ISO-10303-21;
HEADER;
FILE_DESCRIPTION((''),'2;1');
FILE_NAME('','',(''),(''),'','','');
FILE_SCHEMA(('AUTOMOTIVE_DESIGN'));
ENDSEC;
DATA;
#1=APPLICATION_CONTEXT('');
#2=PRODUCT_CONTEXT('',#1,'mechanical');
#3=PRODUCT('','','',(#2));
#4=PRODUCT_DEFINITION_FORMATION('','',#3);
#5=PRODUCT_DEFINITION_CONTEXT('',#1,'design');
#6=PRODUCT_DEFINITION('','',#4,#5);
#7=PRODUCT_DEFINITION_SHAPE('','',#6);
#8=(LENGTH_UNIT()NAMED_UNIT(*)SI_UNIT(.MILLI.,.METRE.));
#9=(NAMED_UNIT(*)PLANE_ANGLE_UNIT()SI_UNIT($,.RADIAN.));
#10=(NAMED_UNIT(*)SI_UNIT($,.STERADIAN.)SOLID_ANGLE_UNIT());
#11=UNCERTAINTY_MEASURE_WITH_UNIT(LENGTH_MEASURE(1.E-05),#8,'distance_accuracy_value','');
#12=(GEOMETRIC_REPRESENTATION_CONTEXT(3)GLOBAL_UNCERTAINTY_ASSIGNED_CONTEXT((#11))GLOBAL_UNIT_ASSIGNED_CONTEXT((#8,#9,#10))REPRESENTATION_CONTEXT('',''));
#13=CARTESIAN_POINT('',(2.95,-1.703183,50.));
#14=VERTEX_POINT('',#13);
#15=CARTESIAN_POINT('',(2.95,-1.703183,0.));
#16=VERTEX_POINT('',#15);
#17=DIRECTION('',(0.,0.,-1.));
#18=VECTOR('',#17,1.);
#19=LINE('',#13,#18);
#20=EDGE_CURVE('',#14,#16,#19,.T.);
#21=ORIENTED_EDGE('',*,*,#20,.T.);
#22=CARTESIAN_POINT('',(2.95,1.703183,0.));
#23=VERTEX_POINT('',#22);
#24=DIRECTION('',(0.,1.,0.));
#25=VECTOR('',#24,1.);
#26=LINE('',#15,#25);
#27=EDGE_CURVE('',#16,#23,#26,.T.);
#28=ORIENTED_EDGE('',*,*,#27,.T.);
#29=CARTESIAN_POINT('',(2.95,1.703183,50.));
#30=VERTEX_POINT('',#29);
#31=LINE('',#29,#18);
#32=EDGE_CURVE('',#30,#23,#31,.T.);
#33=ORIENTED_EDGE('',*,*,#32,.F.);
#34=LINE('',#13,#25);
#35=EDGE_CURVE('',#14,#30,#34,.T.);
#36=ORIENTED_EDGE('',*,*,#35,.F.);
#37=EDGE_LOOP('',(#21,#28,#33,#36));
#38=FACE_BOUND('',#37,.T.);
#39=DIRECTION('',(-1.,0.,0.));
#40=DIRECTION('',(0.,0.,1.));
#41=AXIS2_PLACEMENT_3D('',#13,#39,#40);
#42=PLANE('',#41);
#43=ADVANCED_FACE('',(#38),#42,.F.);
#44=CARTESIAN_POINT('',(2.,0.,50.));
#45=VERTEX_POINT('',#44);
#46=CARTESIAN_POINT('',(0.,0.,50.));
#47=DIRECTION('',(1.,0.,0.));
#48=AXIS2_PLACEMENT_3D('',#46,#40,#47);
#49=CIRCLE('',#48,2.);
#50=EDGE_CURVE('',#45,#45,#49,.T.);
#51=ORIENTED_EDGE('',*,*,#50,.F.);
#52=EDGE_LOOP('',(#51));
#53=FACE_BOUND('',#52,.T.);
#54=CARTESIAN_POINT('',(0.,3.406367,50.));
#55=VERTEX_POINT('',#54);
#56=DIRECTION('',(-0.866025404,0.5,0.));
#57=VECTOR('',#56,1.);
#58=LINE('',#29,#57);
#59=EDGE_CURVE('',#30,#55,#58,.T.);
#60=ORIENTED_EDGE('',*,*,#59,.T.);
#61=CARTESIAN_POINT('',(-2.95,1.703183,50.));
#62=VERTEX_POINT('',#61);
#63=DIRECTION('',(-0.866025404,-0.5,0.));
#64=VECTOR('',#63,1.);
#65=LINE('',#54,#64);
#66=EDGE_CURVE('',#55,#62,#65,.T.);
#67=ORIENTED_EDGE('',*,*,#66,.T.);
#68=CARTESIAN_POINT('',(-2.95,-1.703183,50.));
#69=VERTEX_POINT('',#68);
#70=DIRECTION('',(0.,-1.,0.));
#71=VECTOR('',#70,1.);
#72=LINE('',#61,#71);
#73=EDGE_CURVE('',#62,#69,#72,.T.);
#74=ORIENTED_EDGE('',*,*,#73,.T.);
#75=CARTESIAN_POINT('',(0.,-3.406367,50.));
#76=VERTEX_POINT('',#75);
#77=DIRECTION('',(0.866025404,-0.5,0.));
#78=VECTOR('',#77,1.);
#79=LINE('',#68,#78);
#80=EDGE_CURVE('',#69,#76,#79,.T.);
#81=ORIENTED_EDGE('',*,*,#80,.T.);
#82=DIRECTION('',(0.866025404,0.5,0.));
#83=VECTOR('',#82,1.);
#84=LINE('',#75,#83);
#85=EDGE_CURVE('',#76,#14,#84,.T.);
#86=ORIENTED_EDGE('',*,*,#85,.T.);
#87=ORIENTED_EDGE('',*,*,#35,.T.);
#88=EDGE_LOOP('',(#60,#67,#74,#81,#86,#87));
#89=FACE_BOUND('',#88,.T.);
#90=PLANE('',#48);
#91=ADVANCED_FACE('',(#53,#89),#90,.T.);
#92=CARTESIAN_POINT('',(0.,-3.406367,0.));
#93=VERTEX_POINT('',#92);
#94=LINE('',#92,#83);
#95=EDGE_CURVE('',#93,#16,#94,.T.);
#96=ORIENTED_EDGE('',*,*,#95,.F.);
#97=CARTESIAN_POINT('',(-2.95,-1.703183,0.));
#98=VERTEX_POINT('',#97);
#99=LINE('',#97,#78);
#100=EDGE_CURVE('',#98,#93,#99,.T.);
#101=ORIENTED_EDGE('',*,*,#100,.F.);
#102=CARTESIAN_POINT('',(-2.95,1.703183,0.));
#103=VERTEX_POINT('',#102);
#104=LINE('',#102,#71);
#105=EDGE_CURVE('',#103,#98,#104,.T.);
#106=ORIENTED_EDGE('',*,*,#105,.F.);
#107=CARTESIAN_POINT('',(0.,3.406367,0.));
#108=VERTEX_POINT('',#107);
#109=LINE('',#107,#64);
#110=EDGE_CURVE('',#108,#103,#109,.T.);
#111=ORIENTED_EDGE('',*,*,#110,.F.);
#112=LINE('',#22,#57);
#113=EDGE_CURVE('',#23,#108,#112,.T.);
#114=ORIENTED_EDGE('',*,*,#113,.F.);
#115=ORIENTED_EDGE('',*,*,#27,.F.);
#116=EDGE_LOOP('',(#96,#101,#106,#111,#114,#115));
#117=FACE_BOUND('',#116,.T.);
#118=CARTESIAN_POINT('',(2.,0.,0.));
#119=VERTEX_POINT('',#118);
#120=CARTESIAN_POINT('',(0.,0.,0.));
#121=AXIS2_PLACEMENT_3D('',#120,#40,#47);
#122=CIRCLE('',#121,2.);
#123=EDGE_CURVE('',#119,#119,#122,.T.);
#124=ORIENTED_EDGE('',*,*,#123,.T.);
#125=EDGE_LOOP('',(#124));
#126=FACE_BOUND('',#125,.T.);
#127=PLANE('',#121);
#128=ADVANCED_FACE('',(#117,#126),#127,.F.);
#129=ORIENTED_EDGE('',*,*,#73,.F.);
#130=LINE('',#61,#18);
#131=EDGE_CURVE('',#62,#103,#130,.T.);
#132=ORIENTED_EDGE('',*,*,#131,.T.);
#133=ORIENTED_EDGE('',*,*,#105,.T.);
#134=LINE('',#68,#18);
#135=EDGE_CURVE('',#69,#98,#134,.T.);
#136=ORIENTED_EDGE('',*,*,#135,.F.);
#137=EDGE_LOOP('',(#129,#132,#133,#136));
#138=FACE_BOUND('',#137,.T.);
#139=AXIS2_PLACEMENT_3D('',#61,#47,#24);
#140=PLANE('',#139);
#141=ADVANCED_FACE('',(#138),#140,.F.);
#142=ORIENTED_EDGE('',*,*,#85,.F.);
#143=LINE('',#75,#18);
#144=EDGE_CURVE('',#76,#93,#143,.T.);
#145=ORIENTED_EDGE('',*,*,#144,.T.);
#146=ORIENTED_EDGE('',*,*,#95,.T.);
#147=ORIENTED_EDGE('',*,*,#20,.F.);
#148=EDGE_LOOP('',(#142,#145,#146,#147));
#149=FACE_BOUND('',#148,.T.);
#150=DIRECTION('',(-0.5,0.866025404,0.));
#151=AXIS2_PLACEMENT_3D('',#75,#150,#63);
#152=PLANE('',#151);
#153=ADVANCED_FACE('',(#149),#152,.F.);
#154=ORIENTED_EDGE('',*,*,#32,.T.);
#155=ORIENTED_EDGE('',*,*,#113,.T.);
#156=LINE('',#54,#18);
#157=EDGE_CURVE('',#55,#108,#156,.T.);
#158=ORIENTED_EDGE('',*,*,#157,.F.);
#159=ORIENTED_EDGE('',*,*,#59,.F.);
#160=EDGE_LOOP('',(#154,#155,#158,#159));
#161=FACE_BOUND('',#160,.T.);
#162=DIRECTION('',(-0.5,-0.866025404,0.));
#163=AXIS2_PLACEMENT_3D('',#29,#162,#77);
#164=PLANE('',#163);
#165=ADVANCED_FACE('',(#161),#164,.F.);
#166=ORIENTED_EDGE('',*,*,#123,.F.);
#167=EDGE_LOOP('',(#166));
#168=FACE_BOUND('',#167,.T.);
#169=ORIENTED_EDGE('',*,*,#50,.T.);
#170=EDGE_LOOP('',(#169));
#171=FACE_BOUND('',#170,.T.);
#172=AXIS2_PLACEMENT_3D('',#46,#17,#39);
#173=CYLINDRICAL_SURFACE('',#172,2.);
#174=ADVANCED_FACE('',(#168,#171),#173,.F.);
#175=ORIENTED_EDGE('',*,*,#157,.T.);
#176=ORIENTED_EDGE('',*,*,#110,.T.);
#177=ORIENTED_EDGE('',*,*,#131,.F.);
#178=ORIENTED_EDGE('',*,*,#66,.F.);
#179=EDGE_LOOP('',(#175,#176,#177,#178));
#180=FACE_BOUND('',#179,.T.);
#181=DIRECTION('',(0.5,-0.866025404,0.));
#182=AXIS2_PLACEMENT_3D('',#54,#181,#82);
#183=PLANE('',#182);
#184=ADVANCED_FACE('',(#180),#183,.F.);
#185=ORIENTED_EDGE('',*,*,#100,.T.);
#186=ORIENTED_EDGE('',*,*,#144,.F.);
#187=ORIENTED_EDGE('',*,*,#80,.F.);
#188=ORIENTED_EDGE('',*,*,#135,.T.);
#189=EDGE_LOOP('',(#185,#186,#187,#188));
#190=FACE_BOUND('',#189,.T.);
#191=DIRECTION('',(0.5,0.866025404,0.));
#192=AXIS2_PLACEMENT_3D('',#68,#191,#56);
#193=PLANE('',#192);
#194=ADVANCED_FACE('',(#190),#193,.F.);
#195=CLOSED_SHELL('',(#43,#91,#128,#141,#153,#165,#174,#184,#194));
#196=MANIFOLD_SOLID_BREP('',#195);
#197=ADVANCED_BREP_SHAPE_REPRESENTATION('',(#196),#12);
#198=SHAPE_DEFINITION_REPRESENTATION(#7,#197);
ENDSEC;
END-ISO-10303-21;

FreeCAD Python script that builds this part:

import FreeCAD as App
import Part
import Sketcher
from FreeCAD import Vector
Q = App.Units.Quantity

doc = App.newDocument("Part")
params = doc.addObject("Spreadsheet::Sheet", "Params")
for row, (alias, value) in enumerate([
    ("sketch1_diameter", "4 mm"),
    ("pad1_length", "50 mm"),
], start=1):
    params.set(f"A{row}", alias)
    params.set(f"B{row}", "=" + value)
    params.setAlias(f"B{row}", alias)

body = doc.addObject("PartDesign::Body", "Body")

# Sketch on XY plane
sketch1 = body.newObject("Sketcher::SketchObject", "Sketch")
sketch1.AttachmentSupport = (doc.getObject("XY_Plane"), [""])
sketch1.MapMode = "FlatFace"
sketch1.addGeometry([
    Part.LineSegment(Vector(3, -1.7, 0), Vector(3, 1.7, 0)),  # 0
    Part.LineSegment(Vector(3, 1.7, 0), Vector(0, 3.4, 0)),  # 1
    Part.LineSegment(Vector(0, 3.4, 0), Vector(-3, 1.7, 0)),  # 2
    Part.LineSegment(Vector(-3, 1.7, 0), Vector(-3, -1.7, 0)),  # 3
    Part.LineSegment(Vector(-3, -1.7, 0), Vector(0, -3.4, 0)),  # 4
    Part.LineSegment(Vector(0, -3.4, 0), Vector(3, -1.7, 0)),  # 5
    Part.Circle(Vector(0, 0, 0), Vector(0, 0, 1), 2),  # 6
], False)
sketch1.addConstraint([
    Sketcher.Constraint("Coincident", 0, 2, 1, 1),
    Sketcher.Constraint("Coincident", 1, 2, 2, 1),
    Sketcher.Constraint("Coincident", 2, 2, 3, 1),
    Sketcher.Constraint("Coincident", 3, 2, 4, 1),
    Sketcher.Constraint("Coincident", 4, 2, 5, 1),
    Sketcher.Constraint("Coincident", 5, 2, 0, 1),
    Sketcher.Constraint("Vertical", 0),
    Sketcher.Constraint("Vertical", 3),
    Sketcher.Constraint("Coincident", 6, 3, -1, 1),
    Sketcher.Constraint("Symmetric", 0, 2, 3, 2, -1, 1),
    Sketcher.Constraint("Symmetric", 1, 2, 4, 2, -1, 1),
    Sketcher.Constraint("PointOnObject", 1, 2, -2),
    Sketcher.Constraint("Parallel", 2, 5),
    Sketcher.Constraint("Horizontal", 0, 2, 2, 2),
    Sketcher.Constraint("Diameter", 6, Q("4 mm")),
    Sketcher.Constraint("Angle", 1, Q("150 deg")),
    Sketcher.Constraint("DistanceX", 2, 2, 0, 2, Q("5.9 mm")),
    Sketcher.Constraint("DistanceY", 0, 1, 0, 2, Q("3.406367 mm")),
])
sketch1.setExpression("Constraints[14]", "Params.sketch1_diameter")
pad1 = body.newObject("PartDesign::Pad", "Pad")
pad1.Profile = sketch1
pad1.setExpression("Length", "Params.pad1_length")

doc.recompute()
